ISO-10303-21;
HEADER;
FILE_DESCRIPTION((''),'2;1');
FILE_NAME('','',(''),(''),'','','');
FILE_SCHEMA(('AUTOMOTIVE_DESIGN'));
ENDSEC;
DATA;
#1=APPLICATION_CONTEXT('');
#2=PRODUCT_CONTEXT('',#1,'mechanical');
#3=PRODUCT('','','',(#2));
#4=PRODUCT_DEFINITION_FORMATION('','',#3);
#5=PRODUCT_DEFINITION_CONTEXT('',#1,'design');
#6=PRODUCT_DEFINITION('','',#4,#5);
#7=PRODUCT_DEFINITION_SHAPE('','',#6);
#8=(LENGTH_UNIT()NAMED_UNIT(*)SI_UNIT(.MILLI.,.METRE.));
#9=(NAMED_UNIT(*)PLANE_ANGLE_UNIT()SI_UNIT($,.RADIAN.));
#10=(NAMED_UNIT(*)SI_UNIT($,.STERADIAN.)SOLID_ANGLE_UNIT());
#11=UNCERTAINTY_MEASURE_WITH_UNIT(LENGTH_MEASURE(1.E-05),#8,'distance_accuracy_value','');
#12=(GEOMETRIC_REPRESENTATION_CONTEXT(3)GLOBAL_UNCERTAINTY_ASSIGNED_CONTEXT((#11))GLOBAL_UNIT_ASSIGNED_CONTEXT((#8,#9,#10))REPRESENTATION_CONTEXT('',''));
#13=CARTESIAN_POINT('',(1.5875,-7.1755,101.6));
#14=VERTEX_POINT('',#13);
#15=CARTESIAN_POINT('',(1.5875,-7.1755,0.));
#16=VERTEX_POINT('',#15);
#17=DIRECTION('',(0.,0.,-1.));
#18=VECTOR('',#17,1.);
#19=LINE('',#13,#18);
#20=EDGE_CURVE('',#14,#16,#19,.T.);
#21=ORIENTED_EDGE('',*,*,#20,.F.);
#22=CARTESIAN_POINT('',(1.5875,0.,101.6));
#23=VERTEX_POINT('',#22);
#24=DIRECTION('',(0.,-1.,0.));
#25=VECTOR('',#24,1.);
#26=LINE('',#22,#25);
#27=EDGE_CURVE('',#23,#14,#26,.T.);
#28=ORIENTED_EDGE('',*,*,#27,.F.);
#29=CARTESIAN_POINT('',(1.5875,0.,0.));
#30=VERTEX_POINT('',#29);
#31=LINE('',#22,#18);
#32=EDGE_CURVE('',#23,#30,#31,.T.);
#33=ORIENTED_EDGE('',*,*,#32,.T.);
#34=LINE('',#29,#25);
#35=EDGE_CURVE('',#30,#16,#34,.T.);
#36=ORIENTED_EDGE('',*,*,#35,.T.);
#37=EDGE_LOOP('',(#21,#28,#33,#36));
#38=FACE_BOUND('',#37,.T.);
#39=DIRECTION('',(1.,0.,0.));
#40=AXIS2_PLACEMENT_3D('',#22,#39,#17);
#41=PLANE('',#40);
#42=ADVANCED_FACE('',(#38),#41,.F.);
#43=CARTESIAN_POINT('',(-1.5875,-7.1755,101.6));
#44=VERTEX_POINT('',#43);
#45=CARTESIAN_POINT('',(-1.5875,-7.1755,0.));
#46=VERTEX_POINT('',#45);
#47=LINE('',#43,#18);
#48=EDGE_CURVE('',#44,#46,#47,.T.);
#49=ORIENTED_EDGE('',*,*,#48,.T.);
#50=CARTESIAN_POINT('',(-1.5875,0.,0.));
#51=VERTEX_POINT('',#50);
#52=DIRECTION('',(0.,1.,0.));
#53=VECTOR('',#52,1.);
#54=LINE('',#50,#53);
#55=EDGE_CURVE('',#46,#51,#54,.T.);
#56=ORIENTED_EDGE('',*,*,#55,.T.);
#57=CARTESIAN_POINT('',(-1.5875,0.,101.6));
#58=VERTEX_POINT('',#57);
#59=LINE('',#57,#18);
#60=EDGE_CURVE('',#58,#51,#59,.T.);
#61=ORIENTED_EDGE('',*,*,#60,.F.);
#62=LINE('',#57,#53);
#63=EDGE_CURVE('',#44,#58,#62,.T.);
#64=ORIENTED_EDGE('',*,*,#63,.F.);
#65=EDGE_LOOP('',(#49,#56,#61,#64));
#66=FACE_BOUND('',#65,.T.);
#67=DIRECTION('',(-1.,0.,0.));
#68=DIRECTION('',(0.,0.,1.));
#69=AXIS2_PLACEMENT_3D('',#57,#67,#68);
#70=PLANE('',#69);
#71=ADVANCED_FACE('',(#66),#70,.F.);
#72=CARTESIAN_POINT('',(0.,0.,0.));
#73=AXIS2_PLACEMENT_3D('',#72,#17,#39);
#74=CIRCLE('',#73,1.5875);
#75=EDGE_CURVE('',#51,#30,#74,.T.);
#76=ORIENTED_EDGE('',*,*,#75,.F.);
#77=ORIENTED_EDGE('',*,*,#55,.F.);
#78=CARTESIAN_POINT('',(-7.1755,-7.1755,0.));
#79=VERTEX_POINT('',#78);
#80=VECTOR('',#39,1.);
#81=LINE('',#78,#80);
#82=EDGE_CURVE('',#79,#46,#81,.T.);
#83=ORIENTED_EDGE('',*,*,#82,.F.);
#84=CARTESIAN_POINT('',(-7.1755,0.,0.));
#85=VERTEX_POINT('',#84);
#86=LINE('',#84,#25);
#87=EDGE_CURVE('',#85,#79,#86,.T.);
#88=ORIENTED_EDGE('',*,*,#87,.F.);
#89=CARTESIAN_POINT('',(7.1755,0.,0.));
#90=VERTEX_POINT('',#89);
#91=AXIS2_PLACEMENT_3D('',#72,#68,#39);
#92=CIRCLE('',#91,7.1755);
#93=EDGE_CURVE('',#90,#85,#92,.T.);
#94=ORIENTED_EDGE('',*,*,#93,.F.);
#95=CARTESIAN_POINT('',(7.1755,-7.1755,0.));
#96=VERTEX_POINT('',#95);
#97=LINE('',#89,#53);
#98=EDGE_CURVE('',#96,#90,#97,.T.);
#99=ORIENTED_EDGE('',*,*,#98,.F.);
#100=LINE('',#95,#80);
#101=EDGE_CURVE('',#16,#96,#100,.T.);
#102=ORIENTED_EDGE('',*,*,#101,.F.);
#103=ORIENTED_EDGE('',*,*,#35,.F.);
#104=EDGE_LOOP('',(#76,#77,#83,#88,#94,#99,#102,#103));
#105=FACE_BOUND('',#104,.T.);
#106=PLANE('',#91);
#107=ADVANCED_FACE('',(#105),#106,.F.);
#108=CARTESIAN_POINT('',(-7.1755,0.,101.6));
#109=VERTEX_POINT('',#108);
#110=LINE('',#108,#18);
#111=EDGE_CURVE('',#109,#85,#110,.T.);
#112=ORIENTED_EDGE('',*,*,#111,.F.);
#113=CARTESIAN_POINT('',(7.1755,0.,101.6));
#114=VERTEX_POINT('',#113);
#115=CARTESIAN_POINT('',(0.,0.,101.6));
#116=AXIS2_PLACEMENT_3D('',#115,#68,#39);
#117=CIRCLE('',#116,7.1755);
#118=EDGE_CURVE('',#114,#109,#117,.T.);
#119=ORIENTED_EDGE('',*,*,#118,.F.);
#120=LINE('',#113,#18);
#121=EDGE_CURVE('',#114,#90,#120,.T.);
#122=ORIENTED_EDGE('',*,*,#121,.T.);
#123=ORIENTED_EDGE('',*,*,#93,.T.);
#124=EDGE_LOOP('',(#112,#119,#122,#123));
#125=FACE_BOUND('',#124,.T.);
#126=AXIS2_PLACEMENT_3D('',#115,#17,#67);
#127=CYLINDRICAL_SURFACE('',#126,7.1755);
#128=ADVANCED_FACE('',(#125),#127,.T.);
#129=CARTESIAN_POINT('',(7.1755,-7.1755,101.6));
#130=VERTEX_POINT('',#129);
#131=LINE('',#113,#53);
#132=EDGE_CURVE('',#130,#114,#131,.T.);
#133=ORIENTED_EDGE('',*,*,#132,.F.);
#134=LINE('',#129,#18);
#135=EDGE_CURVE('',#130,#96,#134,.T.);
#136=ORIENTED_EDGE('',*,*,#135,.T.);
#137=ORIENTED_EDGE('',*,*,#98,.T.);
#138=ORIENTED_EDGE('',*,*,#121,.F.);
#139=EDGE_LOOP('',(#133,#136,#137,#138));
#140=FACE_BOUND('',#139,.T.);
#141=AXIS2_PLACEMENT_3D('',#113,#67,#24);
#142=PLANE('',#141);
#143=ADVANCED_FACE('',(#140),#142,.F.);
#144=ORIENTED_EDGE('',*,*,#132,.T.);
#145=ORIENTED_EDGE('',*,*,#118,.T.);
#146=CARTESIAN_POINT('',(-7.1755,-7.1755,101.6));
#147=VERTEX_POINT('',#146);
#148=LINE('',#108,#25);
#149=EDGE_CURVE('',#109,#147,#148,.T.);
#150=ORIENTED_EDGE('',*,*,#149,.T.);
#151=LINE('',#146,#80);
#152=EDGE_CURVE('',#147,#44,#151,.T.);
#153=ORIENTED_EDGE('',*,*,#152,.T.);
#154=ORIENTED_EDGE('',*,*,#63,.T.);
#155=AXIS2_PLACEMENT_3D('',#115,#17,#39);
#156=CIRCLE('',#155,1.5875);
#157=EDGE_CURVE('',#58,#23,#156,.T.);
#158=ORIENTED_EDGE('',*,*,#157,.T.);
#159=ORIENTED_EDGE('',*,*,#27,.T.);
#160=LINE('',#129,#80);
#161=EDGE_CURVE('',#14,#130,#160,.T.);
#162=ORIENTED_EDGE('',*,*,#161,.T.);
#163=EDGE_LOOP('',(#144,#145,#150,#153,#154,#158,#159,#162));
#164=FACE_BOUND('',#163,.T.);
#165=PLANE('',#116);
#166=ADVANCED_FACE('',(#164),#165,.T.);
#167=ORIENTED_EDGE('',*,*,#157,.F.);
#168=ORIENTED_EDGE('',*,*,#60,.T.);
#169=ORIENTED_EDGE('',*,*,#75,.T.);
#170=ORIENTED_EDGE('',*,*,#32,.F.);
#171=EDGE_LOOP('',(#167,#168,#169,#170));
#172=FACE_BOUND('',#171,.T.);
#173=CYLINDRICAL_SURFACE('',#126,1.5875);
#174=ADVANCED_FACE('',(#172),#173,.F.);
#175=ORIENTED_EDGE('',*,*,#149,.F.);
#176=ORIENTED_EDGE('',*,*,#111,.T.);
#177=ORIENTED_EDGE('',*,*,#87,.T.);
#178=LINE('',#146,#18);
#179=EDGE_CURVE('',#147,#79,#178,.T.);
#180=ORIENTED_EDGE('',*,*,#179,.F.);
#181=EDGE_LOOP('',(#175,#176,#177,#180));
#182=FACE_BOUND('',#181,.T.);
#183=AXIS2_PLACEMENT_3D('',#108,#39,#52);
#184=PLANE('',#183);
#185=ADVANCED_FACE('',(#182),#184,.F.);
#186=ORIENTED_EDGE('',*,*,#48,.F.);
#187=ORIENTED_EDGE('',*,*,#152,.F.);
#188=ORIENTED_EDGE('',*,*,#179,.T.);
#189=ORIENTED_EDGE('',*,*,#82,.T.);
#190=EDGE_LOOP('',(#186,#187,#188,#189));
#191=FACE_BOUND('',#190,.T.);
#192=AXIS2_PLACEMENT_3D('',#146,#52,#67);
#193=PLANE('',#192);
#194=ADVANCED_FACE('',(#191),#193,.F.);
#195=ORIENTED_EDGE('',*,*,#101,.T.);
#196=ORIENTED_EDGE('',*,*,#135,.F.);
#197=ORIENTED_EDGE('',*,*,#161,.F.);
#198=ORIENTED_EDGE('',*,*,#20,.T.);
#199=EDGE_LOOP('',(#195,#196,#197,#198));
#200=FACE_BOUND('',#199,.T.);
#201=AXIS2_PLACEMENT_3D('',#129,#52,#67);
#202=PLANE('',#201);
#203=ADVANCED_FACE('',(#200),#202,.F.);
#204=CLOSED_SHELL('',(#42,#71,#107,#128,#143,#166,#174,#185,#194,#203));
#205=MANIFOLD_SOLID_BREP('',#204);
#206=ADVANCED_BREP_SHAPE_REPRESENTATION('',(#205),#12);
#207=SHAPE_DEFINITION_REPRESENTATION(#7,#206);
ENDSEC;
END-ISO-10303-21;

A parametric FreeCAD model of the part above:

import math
import FreeCAD as App
import Part
import Sketcher

V = App.Vector
Q = App.Units.Quantity

doc = App.newDocument("Part")
params = doc.addObject("Spreadsheet::Sheet", "Params")
for row, (alias, value) in enumerate([
    ("sketch1_radius", "0.0625 in"),
    ("sketch1_width", "0.22 in"),
    ("pad1_length", "4 in"),
], start=1):
    params.set(f"A{row}", alias)
    params.set(f"B{row}", "=" + value)
    params.setAlias(f"B{row}", alias)

body = doc.addObject("PartDesign::Body", "Body")

# Sketch on XY plane
sketch1 = doc.addObject("Sketcher::SketchObject", "Sketch")
body.addObject(sketch1)
sketch1.AttachmentSupport = (doc.XY_Plane, [""])
sketch1.MapMode = "FlatFace"
sketch1.addGeometry(Part.LineSegment(V(-1.6, -7.2, 0), V(-1.6, 0, 0)), False)
sketch1.addGeometry(Part.ArcOfCircle(Part.Circle(V(0, 0, 0), V(0, 0, 1), 1.6), math.radians(0), math.radians(180)), False)
sketch1.addGeometry(Part.LineSegment(V(1.6, 0, 0), V(1.6, -7.2, 0)), False)
sketch1.addGeometry(Part.LineSegment(V(1.6, -7.2, 0), V(7.2, -7.2, 0)), False)
sketch1.addGeometry(Part.LineSegment(V(7.2, -7.2, 0), V(7.2, 0, 0)), False)
sketch1.addGeometry(Part.ArcOfCircle(Part.Circle(V(0, 0, 0), V(0, 0, 1), 7.2), math.radians(0), math.radians(180)), False)
sketch1.addGeometry(Part.LineSegment(V(-7.2, 0, 0), V(-7.2, -7.2, 0)), False)
sketch1.addGeometry(Part.LineSegment(V(-7.2, -7.2, 0), V(-1.6, -7.2, 0)), False)
sketch1.addConstraint(Sketcher.Constraint("Tangent", 0, 2, 1, 2))
sketch1.addConstraint(Sketcher.Constraint("Tangent", 1, 1, 2, 1))
sketch1.addConstraint(Sketcher.Constraint("Coincident", 2, 2, 3, 1))
sketch1.addConstraint(Sketcher.Constraint("Coincident", 3, 2, 4, 1))
sketch1.addConstraint(Sketcher.Constraint("Tangent", 4, 2, 5, 1))
sketch1.addConstraint(Sketcher.Constraint("Tangent", 5, 2, 6, 1))
sketch1.addConstraint(Sketcher.Constraint("Coincident", 6, 2, 7, 1))
sketch1.addConstraint(Sketcher.Constraint("Coincident", 7, 2, 0, 1))
sketch1.addConstraint(Sketcher.Constraint("Vertical", 0))
sketch1.addConstraint(Sketcher.Constraint("Vertical", 2))
sketch1.addConstraint(Sketcher.Constraint("Horizontal", 3))
sketch1.addConstraint(Sketcher.Constraint("Vertical", 4))
sketch1.addConstraint(Sketcher.Constraint("Vertical", 6))
sketch1.addConstraint(Sketcher.Constraint("Horizontal", 7))
sketch1.addConstraint(Sketcher.Constraint("Coincident", 1, 3, -1, 1))
sketch1.addConstraint(Sketcher.Constraint("Coincident", 5, 3, -1, 1))
sketch1.addConstraint(Sketcher.Constraint("Horizontal", 3, 2, 6, 2))
sketch1.addConstraint(Sketcher.Constraint("Radius", 1, Q("0.0625 in")))
sketch1.addConstraint(Sketcher.Constraint("DistanceX", 3, 1, 3, 2, Q("0.22 in")))
sketch1.addConstraint(Sketcher.Constraint("DistanceY", 0, 1, 0, 2, Q("0.2825 in")))
sketch1.setExpression("Constraints[17]", "Params.sketch1_radius")
sketch1.setExpression("Constraints[18]", "Params.sketch1_width")
pad1 = doc.addObject("PartDesign::Pad", "Pad")
body.addObject(pad1)
pad1.Profile = sketch1
pad1.setExpression("Length", "Params.pad1_length")

doc.recompute()
